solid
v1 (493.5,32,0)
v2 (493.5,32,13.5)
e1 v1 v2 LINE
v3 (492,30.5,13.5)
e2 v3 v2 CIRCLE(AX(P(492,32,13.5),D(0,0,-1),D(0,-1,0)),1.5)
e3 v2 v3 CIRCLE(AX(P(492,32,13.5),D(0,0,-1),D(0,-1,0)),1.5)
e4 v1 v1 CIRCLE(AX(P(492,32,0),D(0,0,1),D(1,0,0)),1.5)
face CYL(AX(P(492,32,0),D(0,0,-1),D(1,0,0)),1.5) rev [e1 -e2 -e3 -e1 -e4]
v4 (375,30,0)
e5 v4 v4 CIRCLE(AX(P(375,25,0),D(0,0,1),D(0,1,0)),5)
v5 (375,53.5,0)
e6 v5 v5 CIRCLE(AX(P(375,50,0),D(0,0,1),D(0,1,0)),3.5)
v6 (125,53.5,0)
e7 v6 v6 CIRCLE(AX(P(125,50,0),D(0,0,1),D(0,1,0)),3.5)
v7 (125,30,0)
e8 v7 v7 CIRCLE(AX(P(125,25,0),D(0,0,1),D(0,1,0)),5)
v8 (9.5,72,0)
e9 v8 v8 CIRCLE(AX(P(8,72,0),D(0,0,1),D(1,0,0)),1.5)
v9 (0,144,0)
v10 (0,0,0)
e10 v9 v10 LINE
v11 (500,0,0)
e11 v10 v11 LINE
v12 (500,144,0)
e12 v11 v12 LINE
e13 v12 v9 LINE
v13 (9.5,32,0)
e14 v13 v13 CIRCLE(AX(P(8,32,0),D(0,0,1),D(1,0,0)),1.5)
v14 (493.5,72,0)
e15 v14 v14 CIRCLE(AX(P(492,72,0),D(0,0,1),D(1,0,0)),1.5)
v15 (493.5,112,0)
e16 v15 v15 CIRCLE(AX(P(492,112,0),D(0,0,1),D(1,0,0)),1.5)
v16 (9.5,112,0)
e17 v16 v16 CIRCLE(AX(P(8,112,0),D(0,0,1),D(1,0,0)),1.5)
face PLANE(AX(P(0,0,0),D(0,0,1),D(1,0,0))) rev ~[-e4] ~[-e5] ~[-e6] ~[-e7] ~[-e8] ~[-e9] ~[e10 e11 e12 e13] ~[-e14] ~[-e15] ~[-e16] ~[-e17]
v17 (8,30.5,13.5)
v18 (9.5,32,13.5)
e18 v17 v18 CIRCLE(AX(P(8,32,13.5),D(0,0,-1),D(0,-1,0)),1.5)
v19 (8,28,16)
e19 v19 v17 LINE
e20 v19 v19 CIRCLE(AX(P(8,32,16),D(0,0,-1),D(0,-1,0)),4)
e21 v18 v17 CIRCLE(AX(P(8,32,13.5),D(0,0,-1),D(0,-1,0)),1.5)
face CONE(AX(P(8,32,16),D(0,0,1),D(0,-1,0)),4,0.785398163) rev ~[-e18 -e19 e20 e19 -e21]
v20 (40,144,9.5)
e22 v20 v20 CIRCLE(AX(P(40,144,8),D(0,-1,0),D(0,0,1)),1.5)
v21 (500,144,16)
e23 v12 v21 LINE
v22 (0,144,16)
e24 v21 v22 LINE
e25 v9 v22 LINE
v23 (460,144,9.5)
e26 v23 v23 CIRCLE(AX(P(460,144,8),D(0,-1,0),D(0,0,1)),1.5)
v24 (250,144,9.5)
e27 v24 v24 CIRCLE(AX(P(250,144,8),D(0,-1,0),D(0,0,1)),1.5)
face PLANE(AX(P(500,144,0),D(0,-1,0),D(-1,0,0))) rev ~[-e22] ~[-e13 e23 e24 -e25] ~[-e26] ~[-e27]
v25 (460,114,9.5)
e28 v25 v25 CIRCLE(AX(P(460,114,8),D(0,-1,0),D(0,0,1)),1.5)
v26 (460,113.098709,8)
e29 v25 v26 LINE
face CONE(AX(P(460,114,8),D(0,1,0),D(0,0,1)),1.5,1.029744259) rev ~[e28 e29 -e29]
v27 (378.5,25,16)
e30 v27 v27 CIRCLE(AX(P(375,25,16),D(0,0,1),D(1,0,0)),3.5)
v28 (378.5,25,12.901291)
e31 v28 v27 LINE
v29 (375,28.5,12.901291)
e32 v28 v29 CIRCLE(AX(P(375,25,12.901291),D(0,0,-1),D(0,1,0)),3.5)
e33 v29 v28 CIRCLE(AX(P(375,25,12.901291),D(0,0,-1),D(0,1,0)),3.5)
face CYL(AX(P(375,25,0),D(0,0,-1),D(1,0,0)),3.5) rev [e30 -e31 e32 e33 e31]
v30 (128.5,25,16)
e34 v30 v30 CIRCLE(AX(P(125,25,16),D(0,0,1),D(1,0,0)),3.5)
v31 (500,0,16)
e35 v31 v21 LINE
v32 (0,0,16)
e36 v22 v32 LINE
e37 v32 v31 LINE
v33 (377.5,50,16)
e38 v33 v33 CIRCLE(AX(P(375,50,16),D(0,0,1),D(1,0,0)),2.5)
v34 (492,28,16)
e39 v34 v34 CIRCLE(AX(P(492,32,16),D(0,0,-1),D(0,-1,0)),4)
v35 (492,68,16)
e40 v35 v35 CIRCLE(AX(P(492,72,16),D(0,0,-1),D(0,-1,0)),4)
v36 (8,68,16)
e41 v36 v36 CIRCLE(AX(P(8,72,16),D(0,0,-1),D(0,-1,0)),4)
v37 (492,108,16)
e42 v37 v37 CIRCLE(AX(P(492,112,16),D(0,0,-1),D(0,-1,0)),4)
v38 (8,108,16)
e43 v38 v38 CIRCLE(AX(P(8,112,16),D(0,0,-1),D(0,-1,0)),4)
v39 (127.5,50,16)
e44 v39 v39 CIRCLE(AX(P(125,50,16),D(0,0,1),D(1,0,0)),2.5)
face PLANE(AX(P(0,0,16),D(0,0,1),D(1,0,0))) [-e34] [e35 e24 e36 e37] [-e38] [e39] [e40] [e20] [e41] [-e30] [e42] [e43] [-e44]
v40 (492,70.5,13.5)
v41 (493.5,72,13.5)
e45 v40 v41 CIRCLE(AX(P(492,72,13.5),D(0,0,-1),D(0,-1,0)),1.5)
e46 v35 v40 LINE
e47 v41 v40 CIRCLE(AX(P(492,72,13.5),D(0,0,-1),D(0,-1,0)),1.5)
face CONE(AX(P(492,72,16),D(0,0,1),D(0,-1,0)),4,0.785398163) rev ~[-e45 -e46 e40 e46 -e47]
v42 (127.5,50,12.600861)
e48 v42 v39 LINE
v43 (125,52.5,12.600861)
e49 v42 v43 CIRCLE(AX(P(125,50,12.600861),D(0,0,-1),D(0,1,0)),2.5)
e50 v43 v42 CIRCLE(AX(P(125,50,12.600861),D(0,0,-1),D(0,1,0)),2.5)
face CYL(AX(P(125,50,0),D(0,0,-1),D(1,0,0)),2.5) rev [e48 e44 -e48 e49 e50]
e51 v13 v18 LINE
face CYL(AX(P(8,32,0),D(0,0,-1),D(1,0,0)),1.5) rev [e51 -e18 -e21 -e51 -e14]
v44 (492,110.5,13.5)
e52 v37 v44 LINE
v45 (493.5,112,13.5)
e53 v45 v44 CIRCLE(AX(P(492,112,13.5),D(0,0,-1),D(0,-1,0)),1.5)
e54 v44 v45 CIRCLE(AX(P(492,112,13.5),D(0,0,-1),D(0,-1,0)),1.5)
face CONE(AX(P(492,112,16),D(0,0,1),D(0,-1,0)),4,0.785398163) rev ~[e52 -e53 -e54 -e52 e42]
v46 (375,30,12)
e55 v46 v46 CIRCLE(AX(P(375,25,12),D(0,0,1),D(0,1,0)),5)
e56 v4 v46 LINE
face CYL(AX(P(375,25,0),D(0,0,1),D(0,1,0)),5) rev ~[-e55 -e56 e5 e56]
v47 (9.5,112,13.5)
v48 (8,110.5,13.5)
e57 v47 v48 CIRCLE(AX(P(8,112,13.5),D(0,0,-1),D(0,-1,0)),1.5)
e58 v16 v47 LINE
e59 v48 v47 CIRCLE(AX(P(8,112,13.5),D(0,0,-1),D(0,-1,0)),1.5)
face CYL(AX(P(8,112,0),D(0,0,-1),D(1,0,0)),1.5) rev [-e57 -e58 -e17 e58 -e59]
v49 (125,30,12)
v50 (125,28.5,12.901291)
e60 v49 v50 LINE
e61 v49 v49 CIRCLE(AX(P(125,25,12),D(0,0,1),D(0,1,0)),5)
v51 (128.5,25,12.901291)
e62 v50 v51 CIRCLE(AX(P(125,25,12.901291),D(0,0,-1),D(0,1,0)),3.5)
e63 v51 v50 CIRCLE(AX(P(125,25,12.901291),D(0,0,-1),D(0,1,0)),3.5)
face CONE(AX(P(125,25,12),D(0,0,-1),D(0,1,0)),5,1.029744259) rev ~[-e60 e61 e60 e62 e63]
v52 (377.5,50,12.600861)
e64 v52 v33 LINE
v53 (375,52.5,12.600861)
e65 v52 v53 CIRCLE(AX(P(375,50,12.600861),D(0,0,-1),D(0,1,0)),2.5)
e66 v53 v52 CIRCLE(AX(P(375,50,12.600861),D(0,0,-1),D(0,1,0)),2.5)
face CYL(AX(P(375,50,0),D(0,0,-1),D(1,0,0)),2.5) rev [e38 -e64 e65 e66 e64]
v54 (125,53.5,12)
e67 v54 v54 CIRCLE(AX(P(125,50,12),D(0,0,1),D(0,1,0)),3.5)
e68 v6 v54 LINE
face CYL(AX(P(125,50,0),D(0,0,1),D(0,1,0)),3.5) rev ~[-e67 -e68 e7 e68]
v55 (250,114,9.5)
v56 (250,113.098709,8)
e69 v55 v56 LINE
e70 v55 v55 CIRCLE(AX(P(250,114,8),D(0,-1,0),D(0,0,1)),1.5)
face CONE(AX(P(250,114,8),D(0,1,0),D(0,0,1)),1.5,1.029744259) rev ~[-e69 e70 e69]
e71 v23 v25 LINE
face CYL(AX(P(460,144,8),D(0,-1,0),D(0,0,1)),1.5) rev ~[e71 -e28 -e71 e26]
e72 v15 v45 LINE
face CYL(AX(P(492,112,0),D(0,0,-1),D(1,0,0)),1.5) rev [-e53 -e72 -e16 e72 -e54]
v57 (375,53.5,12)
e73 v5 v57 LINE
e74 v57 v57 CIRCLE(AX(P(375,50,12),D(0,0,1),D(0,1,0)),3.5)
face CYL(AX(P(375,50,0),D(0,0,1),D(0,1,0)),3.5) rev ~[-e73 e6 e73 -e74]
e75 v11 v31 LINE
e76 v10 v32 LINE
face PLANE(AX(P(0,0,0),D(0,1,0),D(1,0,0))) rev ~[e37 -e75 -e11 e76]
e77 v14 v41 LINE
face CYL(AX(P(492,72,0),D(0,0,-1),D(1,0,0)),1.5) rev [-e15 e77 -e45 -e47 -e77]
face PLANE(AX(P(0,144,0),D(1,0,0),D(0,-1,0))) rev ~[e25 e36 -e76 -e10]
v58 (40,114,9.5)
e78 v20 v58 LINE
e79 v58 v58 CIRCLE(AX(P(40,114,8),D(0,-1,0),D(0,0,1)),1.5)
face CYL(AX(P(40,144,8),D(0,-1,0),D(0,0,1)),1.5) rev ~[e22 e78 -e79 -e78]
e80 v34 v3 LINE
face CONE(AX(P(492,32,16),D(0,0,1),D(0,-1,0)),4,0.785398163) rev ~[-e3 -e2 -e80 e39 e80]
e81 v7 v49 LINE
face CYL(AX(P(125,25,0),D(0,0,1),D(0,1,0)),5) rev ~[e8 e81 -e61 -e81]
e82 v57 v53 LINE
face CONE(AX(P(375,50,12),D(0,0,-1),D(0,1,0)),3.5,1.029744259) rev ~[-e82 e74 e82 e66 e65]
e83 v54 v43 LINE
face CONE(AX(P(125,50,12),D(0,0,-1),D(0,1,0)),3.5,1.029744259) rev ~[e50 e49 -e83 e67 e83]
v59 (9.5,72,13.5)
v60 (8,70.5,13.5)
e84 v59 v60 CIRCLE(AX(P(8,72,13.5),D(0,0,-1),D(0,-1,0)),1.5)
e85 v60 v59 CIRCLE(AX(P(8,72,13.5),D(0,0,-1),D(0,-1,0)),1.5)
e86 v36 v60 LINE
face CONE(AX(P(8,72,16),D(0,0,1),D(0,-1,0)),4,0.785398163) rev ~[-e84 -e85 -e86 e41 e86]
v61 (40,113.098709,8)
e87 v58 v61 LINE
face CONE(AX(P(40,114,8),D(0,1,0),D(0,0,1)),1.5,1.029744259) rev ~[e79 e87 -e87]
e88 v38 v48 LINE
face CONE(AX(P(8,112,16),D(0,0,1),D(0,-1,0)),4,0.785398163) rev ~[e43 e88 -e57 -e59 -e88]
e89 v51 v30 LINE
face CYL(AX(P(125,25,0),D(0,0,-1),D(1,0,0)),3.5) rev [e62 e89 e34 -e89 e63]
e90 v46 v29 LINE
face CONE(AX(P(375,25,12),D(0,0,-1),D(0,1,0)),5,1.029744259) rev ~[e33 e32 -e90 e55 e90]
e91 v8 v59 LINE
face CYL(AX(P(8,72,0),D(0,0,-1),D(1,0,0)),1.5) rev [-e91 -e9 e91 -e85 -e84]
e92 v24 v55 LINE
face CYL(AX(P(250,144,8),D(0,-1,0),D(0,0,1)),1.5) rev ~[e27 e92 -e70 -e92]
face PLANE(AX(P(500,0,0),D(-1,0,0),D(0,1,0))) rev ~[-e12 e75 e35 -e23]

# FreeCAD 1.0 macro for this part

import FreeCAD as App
import Part
import Sketcher
from FreeCAD import Vector

doc = App.newDocument("Part")
body = doc.addObject("PartDesign::Body", "Body")

# Sketch on XY plane
sketch1 = body.newObject("Sketcher::SketchObject", "Sketch")
sketch1.AttachmentSupport = (doc.getObject("XY_Plane"), [""])
sketch1.MapMode = "FlatFace"
sketch1.addGeometry([
    Part.LineSegment(Vector(0, 144, 0), Vector(0, 0, 0)),  # 0
    Part.LineSegment(Vector(0, 0, 0), Vector(500, 0, 0)),  # 1
    Part.LineSegment(Vector(500, 0, 0), Vector(500, 144, 0)),  # 2
    Part.LineSegment(Vector(500, 144, 0), Vector(0, 144, 0)),  # 3
    Part.Circle(Vector(8, 32, 0), Vector(0, 0, 1), 1.5),  # 4
    Part.Circle(Vector(125, 25, 0), Vector(0, 0, 1), 3.5),  # 5
    Part.Circle(Vector(125, 50, 0), Vector(0, 0, 1), 2.5),  # 6
    Part.Circle(Vector(375, 25, 0), Vector(0, 0, 1), 3.5),  # 7
    Part.Circle(Vector(492, 32, 0), Vector(0, 0, 1), 1.5),  # 8
    Part.Circle(Vector(375, 50, 0), Vector(0, 0, 1), 2.5),  # 9
    Part.Circle(Vector(8, 72, 0), Vector(0, 0, 1), 1.5),  # 10
    Part.Circle(Vector(8, 112, 0), Vector(0, 0, 1), 1.5),  # 11
    Part.Circle(Vector(492, 72, 0), Vector(0, 0, 1), 1.5),  # 12
    Part.Circle(Vector(492, 112, 0), Vector(0, 0, 1), 1.5),  # 13
], False)
sketch1.addConstraint([
    Sketcher.Constraint("Coincident", 0, 2, 1, 1),
    Sketcher.Constraint("Coincident", 1, 2, 2, 1),
    Sketcher.Constraint("Coincident", 2, 2, 3, 1),
    Sketcher.Constraint("Coincident", 3, 2, 0, 1),
    Sketcher.Constraint("Vertical", 0),
    Sketcher.Constraint("Horizontal", 1),
    Sketcher.Constraint("Vertical", 2),
    Sketcher.Constraint("Horizontal", 3),
    Sketcher.Constraint("Coincident", 0, 2, -1, 1),
    Sketcher.Constraint("Equal", 5, 7),
    Sketcher.Constraint("Equal", 4, 8),
    Sketcher.Constraint("Equal", 6, 9),
    Sketcher.Constraint("Equal", 8, 10),
    Sketcher.Constraint("Equal", 10, 11),
    Sketcher.Constraint("Equal", 11, 12),
    Sketcher.Constraint("Equal", 12, 13),
    Sketcher.Constraint("Horizontal", 5, 3, 7, 3),
    Sketcher.Constraint("Horizontal", 4, 3, 8, 3),
    Sketcher.Constraint("Horizontal", 6, 3, 9, 3),
    Sketcher.Constraint("Horizontal", 10, 3, 12, 3),
    Sketcher.Constraint("Horizontal", 11, 3, 13, 3),
    Sketcher.Constraint("Vertical", 5, 3, 6, 3),
    Sketcher.Constraint("Vertical", 7, 3, 9, 3),
    Sketcher.Constraint("Vertical", 4, 3, 10, 3),
    Sketcher.Constraint("Vertical", 10, 3, 11, 3),
    Sketcher.Constraint("Vertical", 8, 3, 12, 3),
    Sketcher.Constraint("Vertical", 12, 3, 13, 3),
    Sketcher.Constraint("Diameter", 4, 3.0),
    Sketcher.Constraint("Diameter", 5, 7.0),
    Sketcher.Constraint("Diameter", 6, 5.0),
    Sketcher.Constraint("DistanceX", 1, 1, 1, 2, 500.0),
    Sketcher.Constraint("DistanceY", 0, 2, 0, 1, 144.0),
    Sketcher.Constraint("DistanceX", -1, 1, 4, 3, 8.0),
    Sketcher.Constraint("DistanceX", -1, 1, 5, 3, 125.0),
    Sketcher.Constraint("DistanceY", -1, 1, 5, 3, 25.0),
    Sketcher.Constraint("DistanceY", -1, 1, 6, 3, 50.0),
    Sketcher.Constraint("DistanceY", 5, 3, 4, 3, 7.0),
    Sketcher.Constraint("DistanceY", 4, 3, 10, 3, 40.0),
    Sketcher.Constraint("DistanceY", 10, 3, 11, 3, 40.0),
    Sketcher.Constraint("DistanceX", 8, 3, 1, 2, 8.0),
    Sketcher.Constraint("DistanceX", 7, 3, 1, 2, 125.0),
])
pad1 = body.newObject("PartDesign::Pad", "Pad")
pad1.Profile = sketch1
pad1.Length = 16

# Sketch on XY plane
sketch2 = body.newObject("Sketcher::SketchObject", "Sketch001")
sketch2.AttachmentSupport = (doc.getObject("XY_Plane"), [""])
sketch2.MapMode = "FlatFace"
sketch2.addGeometry([
    Part.Circle(Vector(375, 25, 0), Vector(0, 0, 1), 5),
    Part.Circle(Vector(125, 25, 0), Vector(0, 0, 1), 5),
    Part.Circle(Vector(-875, 25, 0), Vector(0, 0, 1), 5),
], False)
sketch2.addConstraint([
    Sketcher.Constraint("Equal", 0, 1),
    Sketcher.Constraint("Equal", 1, 2),
    Sketcher.Constraint("Horizontal", 0, 3, 1, 3),
    Sketcher.Constraint("Horizontal", 1, 3, 2, 3),
    Sketcher.Constraint("Diameter", 0, 10.0),
    Sketcher.Constraint("DistanceX", -1, 1, 0, 3, 375.0),
    Sketcher.Constraint("DistanceY", -1, 1, 0, 3, 25.0),
    Sketcher.Constraint("DistanceX", -1, 1, 1, 3, 125.0),
    Sketcher.Constraint("DistanceX", 2, 3, -1, 1, 875.0),
])
doc.recompute()
hole = body.newObject("PartDesign::Hole", "Hole")
hole.Profile = sketch2
hole.ThreadType = "None"
hole.Diameter = 10
hole.DepthType = "Dimension"
hole.Depth = 12
hole.DrillPoint = "Angled"
hole.DrillPointAngle = 118
hole.Reversed = True

# Sketch on XY plane
sketch3 = body.newObject("Sketcher::SketchObject", "Sketch002")
sketch3.AttachmentSupport = (doc.getObject("XY_Plane"), [""])
sketch3.MapMode = "FlatFace"
sketch3.addGeometry([
    Part.Circle(Vector(375, 50, 0), Vector(0, 0, 1), 3.5),
    Part.Circle(Vector(125, 50, 0), Vector(0, 0, 1), 3.5),
], False)
sketch3.addConstraint([
    Sketcher.Constraint("Equal", 0, 1),
    Sketcher.Constraint("Horizontal", 0, 3, 1, 3),
    Sketcher.Constraint("Diameter", 0, 7.0),
    Sketcher.Constraint("DistanceX", -1, 1, 0, 3, 375.0),
    Sketcher.Constraint("DistanceY", -1, 1, 0, 3, 50.0),
    Sketcher.Constraint("DistanceX", -1, 1, 1, 3, 125.0),
])
doc.recompute()
hole2 = body.newObject("PartDesign::Hole", "Hole001")
hole2.Profile = sketch3
hole2.ThreadType = "None"
hole2.Diameter = 7
hole2.DepthType = "Dimension"
hole2.Depth = 12
hole2.DrillPoint = "Angled"
hole2.DrillPointAngle = 118
hole2.Reversed = True

# Sketch on XY plane
sketch4 = body.newObject("Sketcher::SketchObject", "Sketch003")
sketch4.AttachmentSupport = (doc.getObject("XY_Plane"), [""])
sketch4.MapMode = "FlatFace"
sketch4.AttachmentOffset = App.Placement(Vector(0, 0, 16), App.Rotation())
sketch4.addGeometry([
    Part.Circle(Vector(492, 112, 0), Vector(0, 0, 1), 1.5),  # 0
    Part.Circle(Vector(492, 72, 0), Vector(0, 0, 1), 1.5),  # 1
    Part.Circle(Vector(492, 32, 0), Vector(0, 0, 1), 1.5),  # 2
    Part.Circle(Vector(8, 72, 0), Vector(0, 0, 1), 1.5),  # 3
    Part.Circle(Vector(8, 32, 0), Vector(0, 0, 1), 1.5),  # 4
    Part.Circle(Vector(8, 112, 0), Vector(0, 0, 1), 1.5),  # 5
], False)
sketch4.addConstraint([
    Sketcher.Constraint("Equal", 0, 1),
    Sketcher.Constraint("Equal", 1, 2),
    Sketcher.Constraint("Equal", 2, 3),
    Sketcher.Constraint("Equal", 3, 4),
    Sketcher.Constraint("Equal", 4, 5),
    Sketcher.Constraint("Horizontal", 1, 3, 3, 3),
    Sketcher.Constraint("Horizontal", 2, 3, 4, 3),
    Sketcher.Constraint("Horizontal", 0, 3, 5, 3),
    Sketcher.Constraint("Vertical", 0, 3, 1, 3),
    Sketcher.Constraint("Vertical", 1, 3, 2, 3),
    Sketcher.Constraint("Vertical", 3, 3, 4, 3),
    Sketcher.Constraint("Vertical", 4, 3, 5, 3),
    Sketcher.Constraint("Diameter", 0, 3.0),
    Sketcher.Constraint("DistanceX", -1, 1, 0, 3, 492.0),
    Sketcher.Constraint("DistanceY", -1, 1, 0, 3, 112.0),
    Sketcher.Constraint("DistanceY", -1, 1, 1, 3, 72.0),
    Sketcher.Constraint("DistanceY", -1, 1, 2, 3, 32.0),
    Sketcher.Constraint("DistanceX", -1, 1, 3, 3, 8.0),
])
doc.recompute()
hole3 = body.newObject("PartDesign::Hole", "Hole002")
hole3.Profile = sketch4
hole3.ThreadType = "None"
hole3.Diameter = 3
hole3.DepthType = "Dimension"
hole3.Depth = 8
hole3.DrillPoint = "Flat"
hole3.HoleCutType = "Countersink"
hole3.HoleCutDiameter = 8
hole3.HoleCutCountersinkAngle = 90

# Sketch on XZ plane
sketch5 = body.newObject("Sketcher::SketchObject", "Sketch004")
sketch5.AttachmentSupport = (doc.getObject("XZ_Plane"), [""])
sketch5.MapMode = "FlatFace"
sketch5.AttachmentOffset = App.Placement(Vector(0, 0, -144), App.Rotation())
sketch5.addGeometry([
    Part.Circle(Vector(460, 8, 0), Vector(0, 0, 1), 1.5),
    Part.Circle(Vector(250, 8, 0), Vector(0, 0, 1), 1.5),
    Part.Circle(Vector(40, 8, 0), Vector(0, 0, 1), 1.5),
], False)
sketch5.addConstraint([
    Sketcher.Constraint("Equal", 0, 1),
    Sketcher.Constraint("Equal", 1, 2),
    Sketcher.Constraint("Horizontal", 0, 3, 1, 3),
    Sketcher.Constraint("Horizontal", 1, 3, 2, 3),
    Sketcher.Constraint("Diameter", 0, 3.0),
    Sketcher.Constraint("DistanceX", -1, 1, 0, 3, 460.0),
    Sketcher.Constraint("DistanceY", -1, 1, 0, 3, 8.0),
    Sketcher.Constraint("DistanceX", -1, 1, 1, 3, 250.0),
    Sketcher.Constraint("DistanceX", -1, 1, 2, 3, 40.0),
])
doc.recompute()
hole4 = body.newObject("PartDesign::Hole", "Hole003")
hole4.Profile = sketch5
hole4.ThreadType = "None"
hole4.Diameter = 3
hole4.DepthType = "Dimension"
hole4.Depth = 30
hole4.DrillPoint = "Angled"
hole4.DrillPointAngle = 118
hole4.Reversed = True

doc.recompute()
